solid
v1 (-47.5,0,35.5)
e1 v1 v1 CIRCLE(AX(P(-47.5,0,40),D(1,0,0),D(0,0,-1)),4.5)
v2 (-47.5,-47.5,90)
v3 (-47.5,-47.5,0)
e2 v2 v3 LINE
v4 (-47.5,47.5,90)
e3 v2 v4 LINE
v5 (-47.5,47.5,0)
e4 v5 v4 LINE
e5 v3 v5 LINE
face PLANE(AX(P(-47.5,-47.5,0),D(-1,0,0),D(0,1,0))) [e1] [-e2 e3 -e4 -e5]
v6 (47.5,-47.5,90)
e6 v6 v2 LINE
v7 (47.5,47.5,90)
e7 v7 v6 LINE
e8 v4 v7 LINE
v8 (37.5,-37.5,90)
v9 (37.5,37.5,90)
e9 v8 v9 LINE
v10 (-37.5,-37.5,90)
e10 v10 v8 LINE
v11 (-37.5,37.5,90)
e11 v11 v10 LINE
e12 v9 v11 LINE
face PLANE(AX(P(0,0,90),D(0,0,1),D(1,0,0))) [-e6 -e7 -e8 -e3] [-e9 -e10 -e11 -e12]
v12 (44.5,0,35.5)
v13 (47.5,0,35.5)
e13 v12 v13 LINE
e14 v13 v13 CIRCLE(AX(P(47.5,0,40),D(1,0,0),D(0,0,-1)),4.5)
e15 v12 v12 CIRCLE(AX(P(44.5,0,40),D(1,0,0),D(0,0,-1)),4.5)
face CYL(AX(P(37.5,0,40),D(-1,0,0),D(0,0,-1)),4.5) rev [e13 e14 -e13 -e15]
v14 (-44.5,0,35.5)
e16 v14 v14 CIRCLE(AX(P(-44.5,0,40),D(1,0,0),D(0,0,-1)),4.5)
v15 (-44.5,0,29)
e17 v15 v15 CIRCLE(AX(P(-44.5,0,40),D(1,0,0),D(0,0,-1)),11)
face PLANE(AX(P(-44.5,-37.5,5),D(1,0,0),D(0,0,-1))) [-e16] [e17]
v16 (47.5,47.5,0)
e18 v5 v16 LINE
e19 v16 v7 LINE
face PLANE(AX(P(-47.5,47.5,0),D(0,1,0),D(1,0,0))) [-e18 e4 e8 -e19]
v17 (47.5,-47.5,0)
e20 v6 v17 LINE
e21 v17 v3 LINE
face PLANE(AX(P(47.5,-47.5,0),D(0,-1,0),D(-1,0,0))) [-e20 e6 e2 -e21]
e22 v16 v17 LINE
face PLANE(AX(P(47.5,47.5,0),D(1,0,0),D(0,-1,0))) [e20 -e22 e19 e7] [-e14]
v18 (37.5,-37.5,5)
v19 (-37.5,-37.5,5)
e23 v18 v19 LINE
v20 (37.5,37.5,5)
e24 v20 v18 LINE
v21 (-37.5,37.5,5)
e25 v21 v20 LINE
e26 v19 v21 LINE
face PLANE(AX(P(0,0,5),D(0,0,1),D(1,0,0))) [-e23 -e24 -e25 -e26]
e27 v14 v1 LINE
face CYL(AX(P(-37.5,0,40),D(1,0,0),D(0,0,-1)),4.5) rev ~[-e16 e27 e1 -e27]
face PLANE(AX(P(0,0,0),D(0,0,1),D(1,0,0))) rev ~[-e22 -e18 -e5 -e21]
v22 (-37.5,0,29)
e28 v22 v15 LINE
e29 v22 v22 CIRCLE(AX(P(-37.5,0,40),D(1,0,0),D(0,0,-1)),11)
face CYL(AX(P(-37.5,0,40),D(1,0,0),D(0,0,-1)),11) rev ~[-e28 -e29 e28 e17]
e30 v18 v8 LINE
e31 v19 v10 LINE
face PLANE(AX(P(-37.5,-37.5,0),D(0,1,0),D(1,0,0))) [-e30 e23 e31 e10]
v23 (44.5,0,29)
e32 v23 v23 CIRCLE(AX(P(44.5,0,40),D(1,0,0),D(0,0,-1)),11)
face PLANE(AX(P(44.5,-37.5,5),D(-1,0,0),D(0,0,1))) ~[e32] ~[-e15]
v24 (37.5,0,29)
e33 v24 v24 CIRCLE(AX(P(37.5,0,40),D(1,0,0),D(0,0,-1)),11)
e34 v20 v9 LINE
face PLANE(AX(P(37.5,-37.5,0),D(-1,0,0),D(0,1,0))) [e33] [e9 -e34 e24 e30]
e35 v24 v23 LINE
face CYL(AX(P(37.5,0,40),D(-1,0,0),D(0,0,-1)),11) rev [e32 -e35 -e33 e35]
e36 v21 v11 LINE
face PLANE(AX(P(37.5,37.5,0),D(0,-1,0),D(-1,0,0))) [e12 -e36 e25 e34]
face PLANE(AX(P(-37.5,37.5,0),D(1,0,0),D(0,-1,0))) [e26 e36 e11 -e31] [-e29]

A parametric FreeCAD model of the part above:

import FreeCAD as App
import Part
import Sketcher

V = App.Vector


def add_polygon(sketch, points):
    """Adds a closed chain of lines whose ends are joined by coincident constraints."""
    first, n = sketch.GeometryCount, len(points)
    for a, b in zip(points, points[1:] + points[:1]):
        sketch.addGeometry(Part.LineSegment(App.Vector(*a, 0), App.Vector(*b, 0)), False)
    for i in range(n):
        sketch.addConstraint(Sketcher.Constraint("Coincident", first + i, 2, first + (i + 1) % n, 1))

doc = App.newDocument("Part")
params = doc.addObject("Spreadsheet::Sheet", "Params")
for row, (alias, value) in enumerate([
    ("sketch1_width", "95 mm"),
    ("pad1_length", "5 mm"),
    ("sketch2_width", "75 mm"),
    ("pad2_length", "90 mm"),
    ("sketch3_diameter", "22 mm"),
    ("sketch3_diameter2", "9 mm"),
    ("pocket1_length", "7 mm"),
    ("sketch4_diameter", "9 mm"),
    ("pocket2_length", "10 mm"),
], start=1):
    params.set(f"A{row}", alias)
    params.set(f"B{row}", "=" + value)
    params.setAlias(f"B{row}", alias)

body = doc.addObject("PartDesign::Body", "Body")

# Sketch on XY plane
sketch1 = body.newObject("Sketcher::SketchObject", "Sketch")
sketch1.AttachmentSupport = (doc.getObject("XY_Plane"), [""])
sketch1.MapMode = "FlatFace"
add_polygon(sketch1, [(47.5, -47.5), (47.5, 47.5), (-47.5, 47.5), (-47.5, -47.5)])  # lines 0-3
sketch1.addConstraint([
    Sketcher.Constraint("Vertical", 0),
    Sketcher.Constraint("Horizontal", 1),
    Sketcher.Constraint("Vertical", 2),
    Sketcher.Constraint("Horizontal", 3),
    Sketcher.Constraint("Symmetric", 0, 2, 2, 2, -1, 1),
    Sketcher.Constraint("Equal", 3, 0),
    Sketcher.Constraint("DistanceX", 1, 2, 1, 1, 95.0),
])
sketch1.setExpression("Constraints[10]", "Params.sketch1_width")
pad1 = body.newObject("PartDesign::Pad", "Pad")
pad1.Profile = sketch1
pad1.setExpression("Length", "Params.pad1_length")

# Sketch on XY plane
sketch2 = body.newObject("Sketcher::SketchObject", "Sketch001")
sketch2.AttachmentSupport = (doc.getObject("XY_Plane"), [""])
sketch2.MapMode = "FlatFace"
add_polygon(sketch2, [(47.5, -47.5), (47.5, 47.5), (-47.5, 47.5), (-47.5, -47.5)])  # lines 0-3
add_polygon(sketch2, [(37.5, -37.5), (-37.5, -37.5), (-37.5, 37.5), (37.5, 37.5)])  # lines 4-7
sketch2.addConstraint([
    Sketcher.Constraint("Vertical", 0),
    Sketcher.Constraint("Horizontal", 1),
    Sketcher.Constraint("Vertical", 2),
    Sketcher.Constraint("Horizontal", 3),
    Sketcher.Constraint("Horizontal", 4),
    Sketcher.Constraint("Vertical", 5),
    Sketcher.Constraint("Horizontal", 6),
    Sketcher.Constraint("Vertical", 7),
    Sketcher.Constraint("Symmetric", 0, 2, 2, 2, -1, 1),
    Sketcher.Constraint("Symmetric", 4, 2, 6, 2, -1, 1),
    Sketcher.Constraint("Equal", 3, 0),
    Sketcher.Constraint("Equal", 6, 5),
    Sketcher.Constraint("DistanceX", 4, 2, 4, 1, 75.0),
    Sketcher.Constraint("DistanceX", 2, 2, 4, 2, 10.0),
])
sketch2.setExpression("Constraints[20]", "Params.sketch2_width")
pad2 = body.newObject("PartDesign::Pad", "Pad001")
pad2.Profile = sketch2
pad2.setExpression("Length", "Params.pad2_length")

# Sketch on YZ plane
sketch3 = body.newObject("Sketcher::SketchObject", "Sketch002")
sketch3.AttachmentSupport = (doc.getObject("YZ_Plane"), [""])
sketch3.MapMode = "FlatFace"
sketch3.AttachmentOffset = App.Placement(V(0, 0, -37.5), App.Rotation())
sketch3.addGeometry([
    Part.Circle(V(0, 40, 0), V(0, 0, 1), 11),
    Part.Circle(V(0, 40, 0), V(0, 0, 1), 4.5),
], False)
sketch3.addConstraint([
    Sketcher.Constraint("Coincident", 1, 3, 0, 3),
    Sketcher.Constraint("PointOnObject", 0, 3, -2),
    Sketcher.Constraint("Diameter", 0, 22.0),
    Sketcher.Constraint("Diameter", 1, 9.0),
    Sketcher.Constraint("DistanceY", -1, 1, 0, 3, 40.0),
])
sketch3.setExpression("Constraints[2]", "Params.sketch3_diameter")
sketch3.setExpression("Constraints[3]", "Params.sketch3_diameter2")
pocket1 = body.newObject("PartDesign::Pocket", "Pocket")
pocket1.Profile = sketch3
pocket1.setExpression("Length", "Params.pocket1_length")

# Sketch on YZ plane
sketch4 = body.newObject("Sketcher::SketchObject", "Sketch003")
sketch4.AttachmentSupport = (doc.getObject("YZ_Plane"), [""])
sketch4.MapMode = "FlatFace"
sketch4.AttachmentOffset = App.Placement(V(0, 0, -37.5), App.Rotation())
sketch4.addGeometry(Part.Circle(V(0, 40, 0), V(0, 0, 1), 4.5), False)
sketch4.addConstraint([
    Sketcher.Constraint("PointOnObject", 0, 3, -2),
    Sketcher.Constraint("Diameter", 0, 9.0),
    Sketcher.Constraint("DistanceY", -1, 1, 0, 3, 40.0),
])
sketch4.setExpression("Constraints[1]", "Params.sketch4_diameter")
pocket2 = body.newObject("PartDesign::Pocket", "Pocket001")
pocket2.Profile = sketch4
pocket2.setExpression("Length", "Params.pocket2_length")
doc.recompute()

mirrored = body.newObject("PartDesign::Mirrored", "Mirrored")
mirrored.Originals = [pocket2, pocket1]
mirrored.MirrorPlane = (doc.getObject("YZ_Plane"), [""])
body.Tip = mirrored

doc.recompute()
